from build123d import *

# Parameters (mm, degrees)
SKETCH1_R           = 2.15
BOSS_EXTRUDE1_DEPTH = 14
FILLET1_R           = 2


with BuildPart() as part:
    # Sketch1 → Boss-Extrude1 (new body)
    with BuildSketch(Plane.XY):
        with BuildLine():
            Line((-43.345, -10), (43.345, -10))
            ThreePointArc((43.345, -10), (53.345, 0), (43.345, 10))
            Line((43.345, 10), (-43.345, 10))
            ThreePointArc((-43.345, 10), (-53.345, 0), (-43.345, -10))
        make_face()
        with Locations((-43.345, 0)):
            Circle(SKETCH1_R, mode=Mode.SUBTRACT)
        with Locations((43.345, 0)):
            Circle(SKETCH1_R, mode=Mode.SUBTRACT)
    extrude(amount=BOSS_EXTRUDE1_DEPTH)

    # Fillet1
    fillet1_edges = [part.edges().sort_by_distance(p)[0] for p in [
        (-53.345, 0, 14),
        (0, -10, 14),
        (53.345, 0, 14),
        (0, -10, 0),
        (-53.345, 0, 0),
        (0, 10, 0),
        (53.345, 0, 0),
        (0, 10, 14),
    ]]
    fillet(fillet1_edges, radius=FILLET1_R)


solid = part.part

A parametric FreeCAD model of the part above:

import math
import FreeCAD as App
import Part
import Sketcher
from FreeCAD import Vector
Q = App.Units.Quantity


def edges_at(feature, points):
    """Names of the edges that pass closest to the given points."""
    edges = feature.Shape.Edges
    near = lambda p: min(range(len(edges)), key=lambda i: edges[i].distToShape(Part.Vertex(*p))[0])
    return sorted({f"Edge{near(p) + 1}" for p in points})

doc = App.newDocument("Part")
params = doc.addObject("Spreadsheet::Sheet", "Params")
for row, (alias, value) in enumerate([
    ("sketch1_radius", "10 mm"),
    ("sketch1_diameter", "4.3 mm"),
    ("sketch1_width", "86.69 mm"),
    ("pad1_length", "14 mm"),
    ("fillet_radius", "2 mm"),
], start=1):
    params.set(f"A{row}", alias)
    params.set(f"B{row}", "=" + value)
    params.setAlias(f"B{row}", alias)

body = doc.addObject("PartDesign::Body", "Body")

sketch1 = body.newObject("Sketcher::SketchObject", "Sketch")
sketch1.AttachmentSupport = (doc.getObject("XY_Plane"), [""])
sketch1.MapMode = "FlatFace"
sketch1.addGeometry(Part.LineSegment(Vector(-43.3, -10, 0), Vector(43.3, -10, 0)), False)
sketch1.addGeometry(Part.ArcOfCircle(Part.Circle(Vector(43.3, 0, 0), Vector(0, 0, 1), 10), math.radians(-90), math.radians(90)), False)
sketch1.addGeometry(Part.LineSegment(Vector(43.3, 10, 0), Vector(-43.3, 10, 0)), False)
sketch1.addGeometry(Part.ArcOfCircle(Part.Circle(Vector(-43.3, 0, 0), Vector(0, 0, 1), 10), math.radians(90), math.radians(270)), False)
sketch1.addGeometry(Part.Circle(Vector(-43.3, 0, 0), Vector(0, 0, 1), 2.1), False)
sketch1.addGeometry(Part.Circle(Vector(43.3, 0, 0), Vector(0, 0, 1), 2.1), False)
sketch1.addConstraint(Sketcher.Constraint("Tangent", 0, 2, 1, 1))
sketch1.addConstraint(Sketcher.Constraint("Tangent", 1, 2, 2, 1))
sketch1.addConstraint(Sketcher.Constraint("Tangent", 2, 2, 3, 1))
sketch1.addConstraint(Sketcher.Constraint("Tangent", 3, 2, 0, 1))
sketch1.addConstraint(Sketcher.Constraint("Horizontal", 0))
sketch1.addConstraint(Sketcher.Constraint("Horizontal", 2))
sketch1.addConstraint(Sketcher.Constraint("Coincident", 4, 3, 3, 3))
sketch1.addConstraint(Sketcher.Constraint("Coincident", 5, 3, 1, 3))
sketch1.addConstraint(Sketcher.Constraint("Equal", 4, 5))
sketch1.addConstraint(Sketcher.Constraint("Symmetric", 1, 3, 3, 3, -1, 1))
sketch1.addConstraint(Sketcher.Constraint("Radius", 1, Q("10 mm")))
sketch1.addConstraint(Sketcher.Constraint("Diameter", 4, Q("4.3 mm")))
sketch1.addConstraint(Sketcher.Constraint("DistanceX", 0, 1, 0, 2, Q("86.69 mm")))
sketch1.setExpression("Constraints[10]", "Params.sketch1_radius")
sketch1.setExpression("Constraints[11]", "Params.sketch1_diameter")
sketch1.setExpression("Constraints[12]", "Params.sketch1_width")
pad1 = body.newObject("PartDesign::Pad", "Pad")
pad1.Profile = sketch1
pad1.setExpression("Length", "Params.pad1_length")
doc.recompute()

fillet = body.newObject("PartDesign::Fillet", "Fillet")
fillet.Base = (pad1, edges_at(pad1, [
    (-53.345, 0, 14),
    (0, -10, 14),
    (53.345, 0, 14),
    (0, -10, 0),
    (-53.345, 0, 0),
    (0, 10, 0),
    (53.345, 0, 0),
    (0, 10, 14),
]))
fillet.setExpression("Radius", "Params.fillet_radius")

doc.recompute()
